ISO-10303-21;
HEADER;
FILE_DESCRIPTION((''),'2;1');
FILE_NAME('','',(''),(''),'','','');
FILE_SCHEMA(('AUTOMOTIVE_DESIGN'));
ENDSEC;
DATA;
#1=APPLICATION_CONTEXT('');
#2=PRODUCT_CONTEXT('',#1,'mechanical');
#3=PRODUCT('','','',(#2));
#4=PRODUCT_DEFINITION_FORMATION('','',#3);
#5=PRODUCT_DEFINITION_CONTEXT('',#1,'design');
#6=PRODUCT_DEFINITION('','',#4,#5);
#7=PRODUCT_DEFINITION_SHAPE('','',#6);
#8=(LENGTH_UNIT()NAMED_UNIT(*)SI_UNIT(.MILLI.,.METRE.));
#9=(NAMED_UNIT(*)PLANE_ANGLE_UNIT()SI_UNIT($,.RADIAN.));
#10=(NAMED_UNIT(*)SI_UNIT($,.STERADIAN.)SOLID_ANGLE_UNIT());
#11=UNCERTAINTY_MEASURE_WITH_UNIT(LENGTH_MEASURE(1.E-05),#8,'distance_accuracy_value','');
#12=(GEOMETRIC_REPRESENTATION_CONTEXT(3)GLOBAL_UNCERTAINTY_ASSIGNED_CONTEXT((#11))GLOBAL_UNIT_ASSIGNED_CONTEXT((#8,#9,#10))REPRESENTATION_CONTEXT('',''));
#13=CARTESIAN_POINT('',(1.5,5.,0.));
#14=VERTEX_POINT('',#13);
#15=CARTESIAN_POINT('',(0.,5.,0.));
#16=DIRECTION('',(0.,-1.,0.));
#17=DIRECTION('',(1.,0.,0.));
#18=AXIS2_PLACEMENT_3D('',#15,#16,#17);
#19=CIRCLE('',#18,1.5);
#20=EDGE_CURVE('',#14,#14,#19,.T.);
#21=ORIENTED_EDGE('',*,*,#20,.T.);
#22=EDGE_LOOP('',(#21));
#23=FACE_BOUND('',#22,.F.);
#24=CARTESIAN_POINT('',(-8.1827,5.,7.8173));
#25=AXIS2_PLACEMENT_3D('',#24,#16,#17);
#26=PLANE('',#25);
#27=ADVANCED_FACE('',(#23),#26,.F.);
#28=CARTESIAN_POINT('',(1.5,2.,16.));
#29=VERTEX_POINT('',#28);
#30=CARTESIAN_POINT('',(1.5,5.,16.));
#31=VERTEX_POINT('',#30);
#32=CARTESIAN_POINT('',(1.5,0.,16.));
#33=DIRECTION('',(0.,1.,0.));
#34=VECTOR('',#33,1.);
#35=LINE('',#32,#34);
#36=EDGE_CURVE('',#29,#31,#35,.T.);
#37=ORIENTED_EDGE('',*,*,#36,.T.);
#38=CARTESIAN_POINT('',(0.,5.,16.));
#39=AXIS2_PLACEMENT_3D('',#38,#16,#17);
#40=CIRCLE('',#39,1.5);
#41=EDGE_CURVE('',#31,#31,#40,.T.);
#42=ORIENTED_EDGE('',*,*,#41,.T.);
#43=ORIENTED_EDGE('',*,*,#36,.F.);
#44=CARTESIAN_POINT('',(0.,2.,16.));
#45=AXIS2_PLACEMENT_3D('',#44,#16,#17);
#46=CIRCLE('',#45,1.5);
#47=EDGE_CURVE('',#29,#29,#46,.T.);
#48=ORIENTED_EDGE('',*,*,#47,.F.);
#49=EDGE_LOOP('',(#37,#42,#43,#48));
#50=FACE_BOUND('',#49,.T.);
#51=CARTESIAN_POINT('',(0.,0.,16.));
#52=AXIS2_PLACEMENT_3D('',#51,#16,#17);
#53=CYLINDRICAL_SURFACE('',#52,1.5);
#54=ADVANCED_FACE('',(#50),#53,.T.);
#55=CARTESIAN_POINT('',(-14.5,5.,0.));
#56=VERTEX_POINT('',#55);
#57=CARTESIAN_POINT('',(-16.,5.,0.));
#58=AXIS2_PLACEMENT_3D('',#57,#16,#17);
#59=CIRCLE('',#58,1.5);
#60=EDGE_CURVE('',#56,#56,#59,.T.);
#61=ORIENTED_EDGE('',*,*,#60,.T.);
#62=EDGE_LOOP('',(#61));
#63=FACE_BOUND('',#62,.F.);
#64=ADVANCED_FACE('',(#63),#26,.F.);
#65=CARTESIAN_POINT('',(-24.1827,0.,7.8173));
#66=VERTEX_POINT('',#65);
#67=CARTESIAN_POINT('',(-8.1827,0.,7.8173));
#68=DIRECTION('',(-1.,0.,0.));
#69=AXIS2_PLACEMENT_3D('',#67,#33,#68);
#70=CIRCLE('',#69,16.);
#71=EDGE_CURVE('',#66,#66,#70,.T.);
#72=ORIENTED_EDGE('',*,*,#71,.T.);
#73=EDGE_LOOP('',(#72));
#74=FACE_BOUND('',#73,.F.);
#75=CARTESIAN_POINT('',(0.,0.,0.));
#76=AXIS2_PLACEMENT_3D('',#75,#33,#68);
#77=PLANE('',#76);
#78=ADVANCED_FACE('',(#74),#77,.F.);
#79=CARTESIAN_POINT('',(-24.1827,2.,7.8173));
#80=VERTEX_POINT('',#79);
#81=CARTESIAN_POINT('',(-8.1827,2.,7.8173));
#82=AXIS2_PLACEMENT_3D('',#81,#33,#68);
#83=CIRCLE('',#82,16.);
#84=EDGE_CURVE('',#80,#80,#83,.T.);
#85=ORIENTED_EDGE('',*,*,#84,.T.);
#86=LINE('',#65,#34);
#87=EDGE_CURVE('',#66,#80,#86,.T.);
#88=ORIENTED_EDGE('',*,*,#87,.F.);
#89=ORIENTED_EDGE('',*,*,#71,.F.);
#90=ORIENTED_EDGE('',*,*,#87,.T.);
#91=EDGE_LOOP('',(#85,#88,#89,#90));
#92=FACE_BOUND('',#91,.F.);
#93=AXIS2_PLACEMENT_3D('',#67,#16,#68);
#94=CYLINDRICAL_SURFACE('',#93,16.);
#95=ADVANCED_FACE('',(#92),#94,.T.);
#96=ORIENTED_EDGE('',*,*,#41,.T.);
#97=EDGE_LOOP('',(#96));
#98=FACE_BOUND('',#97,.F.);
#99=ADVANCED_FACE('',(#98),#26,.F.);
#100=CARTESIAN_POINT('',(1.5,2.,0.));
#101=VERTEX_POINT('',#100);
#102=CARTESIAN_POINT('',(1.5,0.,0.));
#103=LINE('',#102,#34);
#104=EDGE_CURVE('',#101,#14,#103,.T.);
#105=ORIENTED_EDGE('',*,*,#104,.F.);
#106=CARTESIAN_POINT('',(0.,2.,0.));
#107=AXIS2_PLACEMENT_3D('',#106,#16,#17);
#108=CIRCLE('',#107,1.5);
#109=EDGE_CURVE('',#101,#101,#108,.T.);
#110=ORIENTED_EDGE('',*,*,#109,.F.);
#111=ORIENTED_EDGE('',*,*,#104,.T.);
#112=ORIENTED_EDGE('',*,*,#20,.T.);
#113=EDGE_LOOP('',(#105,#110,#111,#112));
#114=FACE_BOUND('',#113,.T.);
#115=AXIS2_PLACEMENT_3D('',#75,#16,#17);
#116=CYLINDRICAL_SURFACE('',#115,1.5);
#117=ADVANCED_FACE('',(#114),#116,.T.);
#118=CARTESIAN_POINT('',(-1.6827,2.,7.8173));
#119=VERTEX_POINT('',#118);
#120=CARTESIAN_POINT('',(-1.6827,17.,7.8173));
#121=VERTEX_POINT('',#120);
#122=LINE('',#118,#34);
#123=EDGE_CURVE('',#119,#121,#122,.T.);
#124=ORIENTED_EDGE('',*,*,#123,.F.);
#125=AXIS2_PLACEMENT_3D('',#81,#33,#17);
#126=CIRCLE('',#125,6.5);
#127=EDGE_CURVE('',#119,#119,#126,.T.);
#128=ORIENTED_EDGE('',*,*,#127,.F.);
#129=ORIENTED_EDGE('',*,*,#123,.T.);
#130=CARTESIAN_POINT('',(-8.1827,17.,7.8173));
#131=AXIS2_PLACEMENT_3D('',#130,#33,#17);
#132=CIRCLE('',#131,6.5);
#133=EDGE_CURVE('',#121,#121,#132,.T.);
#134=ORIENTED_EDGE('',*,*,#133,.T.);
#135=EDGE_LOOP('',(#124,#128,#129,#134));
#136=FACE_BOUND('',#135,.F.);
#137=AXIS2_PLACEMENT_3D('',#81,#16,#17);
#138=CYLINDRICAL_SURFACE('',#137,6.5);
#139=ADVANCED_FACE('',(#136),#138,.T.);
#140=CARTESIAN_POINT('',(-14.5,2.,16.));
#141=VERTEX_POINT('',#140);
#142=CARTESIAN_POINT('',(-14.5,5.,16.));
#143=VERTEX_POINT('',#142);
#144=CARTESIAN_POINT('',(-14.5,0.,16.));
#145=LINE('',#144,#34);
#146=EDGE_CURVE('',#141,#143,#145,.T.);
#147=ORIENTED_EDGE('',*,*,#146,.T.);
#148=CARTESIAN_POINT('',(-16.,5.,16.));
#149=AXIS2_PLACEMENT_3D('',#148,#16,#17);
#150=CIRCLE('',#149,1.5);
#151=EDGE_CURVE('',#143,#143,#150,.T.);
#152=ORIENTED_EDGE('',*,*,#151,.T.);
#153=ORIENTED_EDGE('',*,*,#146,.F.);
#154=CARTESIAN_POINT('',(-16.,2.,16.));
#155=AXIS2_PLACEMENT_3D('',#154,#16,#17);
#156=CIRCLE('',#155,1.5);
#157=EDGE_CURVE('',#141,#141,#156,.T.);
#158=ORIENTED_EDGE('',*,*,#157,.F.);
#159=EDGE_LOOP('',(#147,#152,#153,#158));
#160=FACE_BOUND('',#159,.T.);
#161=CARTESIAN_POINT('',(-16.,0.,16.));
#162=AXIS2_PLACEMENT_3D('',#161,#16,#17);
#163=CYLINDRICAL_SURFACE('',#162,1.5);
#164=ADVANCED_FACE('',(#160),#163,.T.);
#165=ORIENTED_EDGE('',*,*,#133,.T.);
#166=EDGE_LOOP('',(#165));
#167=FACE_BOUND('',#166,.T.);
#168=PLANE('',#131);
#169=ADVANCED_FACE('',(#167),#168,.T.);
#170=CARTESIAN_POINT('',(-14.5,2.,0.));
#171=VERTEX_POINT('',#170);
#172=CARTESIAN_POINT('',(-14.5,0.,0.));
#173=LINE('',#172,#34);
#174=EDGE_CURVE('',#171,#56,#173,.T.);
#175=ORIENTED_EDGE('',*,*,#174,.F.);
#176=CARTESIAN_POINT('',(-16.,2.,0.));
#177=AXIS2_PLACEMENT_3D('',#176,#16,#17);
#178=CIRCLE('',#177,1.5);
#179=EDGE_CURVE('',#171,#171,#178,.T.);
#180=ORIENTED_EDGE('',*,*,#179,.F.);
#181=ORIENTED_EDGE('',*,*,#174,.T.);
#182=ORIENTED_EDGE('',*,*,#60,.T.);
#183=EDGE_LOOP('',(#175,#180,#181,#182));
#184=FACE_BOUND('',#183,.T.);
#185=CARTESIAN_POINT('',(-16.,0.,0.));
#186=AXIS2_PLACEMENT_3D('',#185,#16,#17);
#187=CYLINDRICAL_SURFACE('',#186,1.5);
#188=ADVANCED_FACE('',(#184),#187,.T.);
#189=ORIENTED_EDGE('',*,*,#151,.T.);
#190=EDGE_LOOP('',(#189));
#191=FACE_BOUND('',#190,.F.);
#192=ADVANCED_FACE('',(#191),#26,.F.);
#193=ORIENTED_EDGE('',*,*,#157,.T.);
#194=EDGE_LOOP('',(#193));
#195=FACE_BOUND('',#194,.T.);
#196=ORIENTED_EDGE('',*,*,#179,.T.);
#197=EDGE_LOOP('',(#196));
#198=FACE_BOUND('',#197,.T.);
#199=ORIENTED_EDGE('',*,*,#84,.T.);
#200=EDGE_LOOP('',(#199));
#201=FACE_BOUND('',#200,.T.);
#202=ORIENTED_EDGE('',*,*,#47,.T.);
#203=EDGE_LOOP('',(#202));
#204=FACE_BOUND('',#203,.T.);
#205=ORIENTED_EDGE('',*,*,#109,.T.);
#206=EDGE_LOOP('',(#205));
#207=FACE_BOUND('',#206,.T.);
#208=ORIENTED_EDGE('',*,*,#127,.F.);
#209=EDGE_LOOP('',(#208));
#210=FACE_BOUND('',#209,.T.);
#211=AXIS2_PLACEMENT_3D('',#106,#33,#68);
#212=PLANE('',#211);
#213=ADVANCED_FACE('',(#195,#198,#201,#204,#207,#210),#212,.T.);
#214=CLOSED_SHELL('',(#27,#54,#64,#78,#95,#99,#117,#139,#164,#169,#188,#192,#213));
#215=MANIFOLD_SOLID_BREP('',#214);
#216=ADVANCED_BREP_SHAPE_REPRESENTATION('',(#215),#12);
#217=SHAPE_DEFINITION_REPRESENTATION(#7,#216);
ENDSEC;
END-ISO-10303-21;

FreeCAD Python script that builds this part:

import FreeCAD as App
import Part
import Sketcher

V = App.Vector
Q = App.Units.Quantity

doc = App.newDocument("Part")
params = doc.addObject("Spreadsheet::Sheet", "Params")
for row, (alias, value) in enumerate([
    ("sketch1_diameter", "32 mm"),
    ("sketch1_diameter2", "3 mm"),
    ("pad1_length", "2 mm"),
    ("sketch2_diameter", "13 mm"),
    ("pad2_length", "15 mm"),
    ("sketch3_diameter", "3 mm"),
    ("pad3_length", "5 mm"),
], start=1):
    params.set(f"A{row}", alias)
    params.set(f"B{row}", "=" + value)
    params.setAlias(f"B{row}", alias)

body = doc.addObject("PartDesign::Body", "Body")

# Sketch on XZ plane
sketch1 = body.newObject("Sketcher::SketchObject", "Sketch")
sketch1.AttachmentSupport = (doc.getObject("XZ_Plane"), [""])
sketch1.MapMode = "FlatFace"
sketch1.addGeometry([
    Part.Circle(V(-8.2, 7.8, 0), V(0, 0, 1), 16),  # 0
    Part.Circle(V(0, 0, 0), V(0, 0, 1), 1.5),  # 1
    Part.Circle(V(0, 16, 0), V(0, 0, 1), 1.5),  # 2
    Part.Circle(V(-16, 0, 0), V(0, 0, 1), 1.5),  # 3
    Part.Circle(V(-16, 16, 0), V(0, 0, 1), 1.5),  # 4
], False)
sketch1.addConstraint([
    Sketcher.Constraint("Coincident", 1, 3, -1, 1),
    Sketcher.Constraint("Equal", 1, 2),
    Sketcher.Constraint("Equal", 2, 3),
    Sketcher.Constraint("Equal", 3, 4),
    Sketcher.Constraint("PointOnObject", 2, 3, -2),
    Sketcher.Constraint("PointOnObject", 3, 3, -1),
    Sketcher.Constraint("Horizontal", 2, 3, 4, 3),
    Sketcher.Constraint("Vertical", 3, 3, 4, 3),
    Sketcher.Constraint("Diameter", 0, Q("32 mm")),
    Sketcher.Constraint("Diameter", 1, Q("3 mm")),
    Sketcher.Constraint("DistanceY", -1, 1, 2, 3, Q("16 mm")),
    Sketcher.Constraint("DistanceX", 3, 3, -1, 1, Q("16 mm")),
    Sketcher.Constraint("DistanceX", 0, 3, -1, 1, Q("8.1827 mm")),
    Sketcher.Constraint("DistanceY", -1, 1, 0, 3, Q("7.8173 mm")),
])
sketch1.setExpression("Constraints[8]", "Params.sketch1_diameter")
sketch1.setExpression("Constraints[9]", "Params.sketch1_diameter2")
pad1 = body.newObject("PartDesign::Pad", "Pad")
pad1.Profile = sketch1
pad1.setExpression("Length", "Params.pad1_length")
pad1.Reversed = True

# Sketch on XZ plane
sketch2 = body.newObject("Sketcher::SketchObject", "Sketch001")
sketch2.AttachmentSupport = (doc.getObject("XZ_Plane"), [""])
sketch2.MapMode = "FlatFace"
sketch2.AttachmentOffset = App.Placement(V(0, 0, -2), App.Rotation())
sketch2.addGeometry(Part.Circle(V(-8, 8, 0), V(0, 0, 1), 6), False)
sketch2.addConstraint([
    Sketcher.Constraint("Diameter", 0, Q("13 mm")),
    Sketcher.Constraint("DistanceX", 0, 3, -1, 1, Q("8.1827 mm")),
    Sketcher.Constraint("DistanceY", -1, 1, 0, 3, Q("7.8173 mm")),
])
sketch2.setExpression("Constraints[0]", "Params.sketch2_diameter")
pad2 = body.newObject("PartDesign::Pad", "Pad001")
pad2.Profile = sketch2
pad2.setExpression("Length", "Params.pad2_length")
pad2.Reversed = True

# Sketch on XZ plane
sketch3 = body.newObject("Sketcher::SketchObject", "Sketch002")
sketch3.AttachmentSupport = (doc.getObject("XZ_Plane"), [""])
sketch3.MapMode = "FlatFace"
sketch3.addGeometry([
    Part.Circle(V(0, 16, 0), V(0, 0, 1), 1.5),
    Part.Circle(V(0, 0, 0), V(0, 0, 1), 1.5),
    Part.Circle(V(-16, 0, 0), V(0, 0, 1), 1.5),
    Part.Circle(V(-16, 16, 0), V(0, 0, 1), 1.5),
], False)
sketch3.addConstraint([
    Sketcher.Constraint("Coincident", 1, 3, -1, 1),
    Sketcher.Constraint("Equal", 0, 1),
    Sketcher.Constraint("Equal", 1, 2),
    Sketcher.Constraint("Equal", 2, 3),
    Sketcher.Constraint("PointOnObject", 0, 3, -2),
    Sketcher.Constraint("PointOnObject", 2, 3, -1),
    Sketcher.Constraint("Horizontal", 0, 3, 3, 3),
    Sketcher.Constraint("Vertical", 2, 3, 3, 3),
    Sketcher.Constraint("Diameter", 0, Q("3 mm")),
    Sketcher.Constraint("DistanceY", -1, 1, 0, 3, Q("16 mm")),
    Sketcher.Constraint("DistanceX", 2, 3, -1, 1, Q("16 mm")),
])
sketch3.setExpression("Constraints[8]", "Params.sketch3_diameter")
pad3 = body.newObject("PartDesign::Pad", "Pad002")
pad3.Profile = sketch3
pad3.setExpression("Length", "Params.pad3_length")
pad3.Reversed = True

doc.recompute()
